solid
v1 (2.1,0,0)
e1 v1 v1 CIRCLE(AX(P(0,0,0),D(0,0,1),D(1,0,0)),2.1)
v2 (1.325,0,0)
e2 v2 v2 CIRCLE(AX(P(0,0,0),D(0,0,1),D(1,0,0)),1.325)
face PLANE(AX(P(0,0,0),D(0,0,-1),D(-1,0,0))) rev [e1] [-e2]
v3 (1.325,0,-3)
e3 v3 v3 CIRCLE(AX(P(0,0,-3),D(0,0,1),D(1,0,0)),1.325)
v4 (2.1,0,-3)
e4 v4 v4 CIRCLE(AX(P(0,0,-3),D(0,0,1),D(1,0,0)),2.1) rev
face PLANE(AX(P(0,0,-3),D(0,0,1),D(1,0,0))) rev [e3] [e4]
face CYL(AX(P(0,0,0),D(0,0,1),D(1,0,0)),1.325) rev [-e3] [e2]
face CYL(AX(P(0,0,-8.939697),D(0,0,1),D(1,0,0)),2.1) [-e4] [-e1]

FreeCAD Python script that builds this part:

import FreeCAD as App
import Part
import Sketcher

V = App.Vector


def add_polygon(sketch, points):
    """Adds a closed chain of lines whose ends are joined by coincident constraints."""
    first, n = sketch.GeometryCount, len(points)
    for a, b in zip(points, points[1:] + points[:1]):
        sketch.addGeometry(Part.LineSegment(App.Vector(*a, 0), App.Vector(*b, 0)), False)
    for i in range(n):
        sketch.addConstraint(Sketcher.Constraint("Coincident", first + i, 2, first + (i + 1) % n, 1))

doc = App.newDocument("Part")
body = doc.addObject("PartDesign::Body", "Body")

sketch1 = body.newObject("Sketcher::SketchObject", "Sketch")
sketch1.AttachmentSupport = (doc.getObject("YZ_Plane"), [""])
sketch1.MapMode = "FlatFace"
add_polygon(sketch1, [(1.9, 0), (0, 0), (0, -3), (1.9, -3)])
sketch1.addConstraint(Sketcher.Constraint("Horizontal", 0))
sketch1.addConstraint(Sketcher.Constraint("Vertical", 1))
sketch1.addConstraint(Sketcher.Constraint("Horizontal", 2))
sketch1.addConstraint(Sketcher.Constraint("Vertical", 3))
sketch1.addConstraint(Sketcher.Constraint("Coincident", 0, 2, -1, 1))
sketch1.addConstraint(Sketcher.Constraint("DistanceY", 1, 2, 1, 1, 3.0))
sketch1.addConstraint(Sketcher.Constraint("DistanceX", 0, 2, 0, 1, 1.9))
revolution = body.newObject("PartDesign::Revolution", "Revolution")
revolution.Profile = sketch1
revolution.ReferenceAxis = (sketch1, ["V_Axis"])
revolution.Angle = 360

sketch2 = body.newObject("Sketcher::SketchObject", "Sketch001")
sketch2.AttachmentSupport = (doc.getObject("XY_Plane"), [""])
sketch2.MapMode = "FlatFace"
sketch2.addGeometry(Part.Circle(V(0, 0, 0), V(0, 0, 1), 1.325), False)
sketch2.addConstraint(Sketcher.Constraint("Coincident", 0, 3, -1, 1))
sketch2.addConstraint(Sketcher.Constraint("Diameter", 0, 2.65))
doc.recompute()
hole = body.newObject("PartDesign::Hole", "Hole")
hole.Profile = sketch2
hole.ThreadType = "None"
hole.Diameter = 2.65
hole.DepthType = "ThroughAll"

sketch3 = body.newObject("Sketcher::SketchObject", "Sketch002")
sketch3.AttachmentSupport = (doc.getObject("XY_Plane"), [""])
sketch3.MapMode = "FlatFace"
sketch3.addGeometry(Part.Circle(V(0, 0, 0), V(0, 0, 1), 2.1), False)
sketch3.addGeometry(Part.Circle(V(0, 0, 0), V(0, 0, 1), 1.9), False)
sketch3.addConstraint(Sketcher.Constraint("Coincident", 0, 3, -1, 1))
sketch3.addConstraint(Sketcher.Constraint("Coincident", 1, 3, -1, 1))
sketch3.addConstraint(Sketcher.Constraint("Diameter", 0, 4.2))
sketch3.addConstraint(Sketcher.Constraint("Diameter", 1, 3.8))
pad1 = body.newObject("PartDesign::Pad", "Pad")
pad1.Profile = sketch3
pad1.Length = 3
pad1.Reversed = True

doc.recompute()
